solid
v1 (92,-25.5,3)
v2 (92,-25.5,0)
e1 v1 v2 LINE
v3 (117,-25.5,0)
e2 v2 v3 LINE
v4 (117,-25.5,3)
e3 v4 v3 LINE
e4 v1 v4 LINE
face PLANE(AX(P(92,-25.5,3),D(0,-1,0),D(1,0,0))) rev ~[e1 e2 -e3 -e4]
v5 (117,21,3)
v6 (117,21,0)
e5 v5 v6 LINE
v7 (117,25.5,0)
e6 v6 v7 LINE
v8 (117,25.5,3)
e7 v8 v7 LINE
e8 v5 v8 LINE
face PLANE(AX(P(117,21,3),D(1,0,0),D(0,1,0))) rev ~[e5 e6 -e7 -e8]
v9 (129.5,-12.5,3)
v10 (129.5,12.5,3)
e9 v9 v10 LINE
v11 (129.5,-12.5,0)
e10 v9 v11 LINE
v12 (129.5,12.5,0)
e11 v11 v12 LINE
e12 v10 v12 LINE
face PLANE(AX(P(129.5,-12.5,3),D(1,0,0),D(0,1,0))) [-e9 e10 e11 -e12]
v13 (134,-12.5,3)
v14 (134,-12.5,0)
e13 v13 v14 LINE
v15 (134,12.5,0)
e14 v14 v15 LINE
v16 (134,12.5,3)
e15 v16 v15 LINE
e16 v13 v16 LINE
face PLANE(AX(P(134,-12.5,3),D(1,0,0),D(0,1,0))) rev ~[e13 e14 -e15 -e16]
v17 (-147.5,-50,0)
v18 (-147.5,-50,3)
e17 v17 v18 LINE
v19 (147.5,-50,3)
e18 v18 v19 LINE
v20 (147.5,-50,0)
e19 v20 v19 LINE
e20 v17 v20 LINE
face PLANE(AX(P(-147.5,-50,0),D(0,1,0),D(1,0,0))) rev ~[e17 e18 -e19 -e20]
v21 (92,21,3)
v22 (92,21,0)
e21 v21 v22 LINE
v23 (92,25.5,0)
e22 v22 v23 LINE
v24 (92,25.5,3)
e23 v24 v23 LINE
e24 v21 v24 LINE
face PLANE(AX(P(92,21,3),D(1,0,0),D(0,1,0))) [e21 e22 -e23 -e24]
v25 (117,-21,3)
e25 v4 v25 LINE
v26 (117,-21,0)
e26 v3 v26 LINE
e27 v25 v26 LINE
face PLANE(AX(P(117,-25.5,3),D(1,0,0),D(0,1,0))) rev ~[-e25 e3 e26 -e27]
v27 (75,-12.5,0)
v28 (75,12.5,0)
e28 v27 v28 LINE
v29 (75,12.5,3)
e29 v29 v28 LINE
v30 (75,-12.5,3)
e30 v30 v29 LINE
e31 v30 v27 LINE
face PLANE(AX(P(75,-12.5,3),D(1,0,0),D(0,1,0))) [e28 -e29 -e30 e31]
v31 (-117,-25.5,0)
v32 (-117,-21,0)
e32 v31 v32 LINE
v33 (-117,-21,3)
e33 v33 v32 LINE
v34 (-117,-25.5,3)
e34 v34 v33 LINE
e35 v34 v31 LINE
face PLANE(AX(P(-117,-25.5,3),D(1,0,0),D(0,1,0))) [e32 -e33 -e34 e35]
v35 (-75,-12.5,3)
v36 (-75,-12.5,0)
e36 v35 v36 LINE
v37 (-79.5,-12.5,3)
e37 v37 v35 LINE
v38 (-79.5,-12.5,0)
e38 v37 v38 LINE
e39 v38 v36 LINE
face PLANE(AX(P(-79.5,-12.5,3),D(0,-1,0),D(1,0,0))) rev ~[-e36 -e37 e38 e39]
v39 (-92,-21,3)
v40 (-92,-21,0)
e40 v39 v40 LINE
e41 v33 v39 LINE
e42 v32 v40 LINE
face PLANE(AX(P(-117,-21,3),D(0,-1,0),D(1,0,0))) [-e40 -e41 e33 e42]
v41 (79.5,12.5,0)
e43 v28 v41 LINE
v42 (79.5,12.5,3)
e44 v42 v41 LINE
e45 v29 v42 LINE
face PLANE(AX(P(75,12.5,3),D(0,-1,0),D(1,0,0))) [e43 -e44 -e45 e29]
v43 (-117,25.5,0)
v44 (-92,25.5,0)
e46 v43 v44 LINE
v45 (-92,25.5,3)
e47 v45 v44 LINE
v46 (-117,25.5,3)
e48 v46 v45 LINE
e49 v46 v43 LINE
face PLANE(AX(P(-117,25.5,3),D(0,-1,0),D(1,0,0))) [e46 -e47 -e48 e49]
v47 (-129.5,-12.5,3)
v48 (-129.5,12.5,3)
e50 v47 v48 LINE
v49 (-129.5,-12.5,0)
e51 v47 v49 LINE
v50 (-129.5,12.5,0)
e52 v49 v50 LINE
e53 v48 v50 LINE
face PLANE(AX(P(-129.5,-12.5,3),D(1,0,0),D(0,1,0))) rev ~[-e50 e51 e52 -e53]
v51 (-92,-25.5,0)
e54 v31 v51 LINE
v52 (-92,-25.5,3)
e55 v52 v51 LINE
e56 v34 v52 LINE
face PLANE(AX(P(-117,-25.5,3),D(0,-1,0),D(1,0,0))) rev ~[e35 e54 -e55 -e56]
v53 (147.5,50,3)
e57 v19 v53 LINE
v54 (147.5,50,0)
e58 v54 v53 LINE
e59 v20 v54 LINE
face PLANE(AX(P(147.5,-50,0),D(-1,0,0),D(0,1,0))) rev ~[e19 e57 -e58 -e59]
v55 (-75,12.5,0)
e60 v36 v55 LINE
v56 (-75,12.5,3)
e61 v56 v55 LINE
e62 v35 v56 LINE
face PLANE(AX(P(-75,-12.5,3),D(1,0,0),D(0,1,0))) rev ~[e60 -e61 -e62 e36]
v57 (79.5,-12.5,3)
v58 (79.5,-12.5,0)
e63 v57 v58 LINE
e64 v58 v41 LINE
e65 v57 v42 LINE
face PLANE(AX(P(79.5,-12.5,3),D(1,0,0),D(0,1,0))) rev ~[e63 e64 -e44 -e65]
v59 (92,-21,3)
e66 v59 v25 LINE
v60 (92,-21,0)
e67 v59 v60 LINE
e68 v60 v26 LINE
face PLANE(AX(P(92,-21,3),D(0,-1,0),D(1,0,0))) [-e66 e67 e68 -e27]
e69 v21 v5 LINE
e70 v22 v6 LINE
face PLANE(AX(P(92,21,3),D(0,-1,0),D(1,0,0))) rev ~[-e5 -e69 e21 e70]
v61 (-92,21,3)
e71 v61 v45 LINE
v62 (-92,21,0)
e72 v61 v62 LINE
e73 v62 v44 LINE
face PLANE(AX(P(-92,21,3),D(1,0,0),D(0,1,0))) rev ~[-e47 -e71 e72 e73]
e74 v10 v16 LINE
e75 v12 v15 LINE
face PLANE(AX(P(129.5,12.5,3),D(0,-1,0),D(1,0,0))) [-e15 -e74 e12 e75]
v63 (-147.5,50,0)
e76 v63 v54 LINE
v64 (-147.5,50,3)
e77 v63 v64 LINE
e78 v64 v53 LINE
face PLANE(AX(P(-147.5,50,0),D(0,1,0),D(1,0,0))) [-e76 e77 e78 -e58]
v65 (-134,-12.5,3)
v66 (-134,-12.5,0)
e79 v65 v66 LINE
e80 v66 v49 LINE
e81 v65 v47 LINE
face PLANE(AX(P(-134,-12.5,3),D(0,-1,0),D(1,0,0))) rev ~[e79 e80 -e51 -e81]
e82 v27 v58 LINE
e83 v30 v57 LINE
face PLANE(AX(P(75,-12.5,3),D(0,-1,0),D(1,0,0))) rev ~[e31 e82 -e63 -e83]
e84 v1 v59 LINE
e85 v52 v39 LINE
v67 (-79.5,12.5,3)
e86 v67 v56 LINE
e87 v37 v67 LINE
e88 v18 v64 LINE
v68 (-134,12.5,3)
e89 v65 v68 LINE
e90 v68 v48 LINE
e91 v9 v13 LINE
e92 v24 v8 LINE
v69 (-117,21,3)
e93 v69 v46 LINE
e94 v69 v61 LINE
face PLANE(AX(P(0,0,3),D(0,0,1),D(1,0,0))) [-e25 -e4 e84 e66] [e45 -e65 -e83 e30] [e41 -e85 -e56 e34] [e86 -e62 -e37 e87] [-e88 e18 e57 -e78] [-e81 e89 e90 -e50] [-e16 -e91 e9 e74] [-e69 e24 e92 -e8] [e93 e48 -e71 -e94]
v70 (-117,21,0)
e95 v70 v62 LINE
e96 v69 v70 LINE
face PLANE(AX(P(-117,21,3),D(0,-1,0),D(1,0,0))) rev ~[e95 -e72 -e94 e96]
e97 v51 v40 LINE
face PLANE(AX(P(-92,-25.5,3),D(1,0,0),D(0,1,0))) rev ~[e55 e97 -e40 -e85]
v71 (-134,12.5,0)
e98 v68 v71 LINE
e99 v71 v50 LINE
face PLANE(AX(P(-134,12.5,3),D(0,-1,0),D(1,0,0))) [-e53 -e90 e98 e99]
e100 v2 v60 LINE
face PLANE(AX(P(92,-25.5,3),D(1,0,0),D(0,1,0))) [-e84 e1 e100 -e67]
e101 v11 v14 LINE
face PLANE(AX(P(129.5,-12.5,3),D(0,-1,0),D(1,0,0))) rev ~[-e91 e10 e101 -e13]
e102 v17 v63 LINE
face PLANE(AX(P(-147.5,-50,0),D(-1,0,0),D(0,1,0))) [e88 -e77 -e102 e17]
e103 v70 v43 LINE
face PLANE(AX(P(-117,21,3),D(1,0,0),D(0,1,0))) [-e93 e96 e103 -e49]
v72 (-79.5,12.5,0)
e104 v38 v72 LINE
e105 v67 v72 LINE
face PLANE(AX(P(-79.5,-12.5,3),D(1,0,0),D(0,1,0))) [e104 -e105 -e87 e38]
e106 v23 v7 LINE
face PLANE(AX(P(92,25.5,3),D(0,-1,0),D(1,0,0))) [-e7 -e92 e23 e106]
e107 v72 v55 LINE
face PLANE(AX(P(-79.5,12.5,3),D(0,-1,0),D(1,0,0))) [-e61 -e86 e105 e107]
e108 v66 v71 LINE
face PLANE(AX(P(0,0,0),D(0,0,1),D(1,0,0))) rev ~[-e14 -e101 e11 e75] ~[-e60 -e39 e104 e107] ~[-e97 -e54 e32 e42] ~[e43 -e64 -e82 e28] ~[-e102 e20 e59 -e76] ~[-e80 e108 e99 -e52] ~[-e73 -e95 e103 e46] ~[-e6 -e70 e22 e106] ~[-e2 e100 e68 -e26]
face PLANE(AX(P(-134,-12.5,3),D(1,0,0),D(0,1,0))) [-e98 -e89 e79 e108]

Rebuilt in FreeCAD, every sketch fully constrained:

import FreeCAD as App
import Part
import Sketcher
from FreeCAD import Vector
Q = App.Units.Quantity


def add_polygon(sketch, points):
    """Adds a closed chain of lines whose ends are joined by coincident constraints."""
    first, n = sketch.GeometryCount, len(points)
    for a, b in zip(points, points[1:] + points[:1]):
        sketch.addGeometry(Part.LineSegment(App.Vector(*a, 0), App.Vector(*b, 0)), False)
    for i in range(n):
        sketch.addConstraint(Sketcher.Constraint("Coincident", first + i, 2, first + (i + 1) % n, 1))

doc = App.newDocument("Part")
body = doc.addObject("PartDesign::Body", "Body")

sketch1 = body.newObject("Sketcher::SketchObject", "Sketch")
sketch1.AttachmentSupport = (doc.getObject("XY_Plane"), [""])
sketch1.MapMode = "FlatFace"
add_polygon(sketch1, [(-148, 50), (-148, -50), (148, -50), (148, 50)])
sketch1.addConstraint([
    Sketcher.Constraint("Vertical", 0),
    Sketcher.Constraint("Horizontal", 1),
    Sketcher.Constraint("Vertical", 2),
    Sketcher.Constraint("Horizontal", 3),
    Sketcher.Constraint("Symmetric", 0, 2, 2, 2, -1, 1),
    Sketcher.Constraint("DistanceX", 1, 1, 1, 2, Q("295 mm")),
    Sketcher.Constraint("DistanceY", 0, 2, 0, 1, Q("100 mm")),
])
pad1 = body.newObject("PartDesign::Pad", "Pad")
pad1.Profile = sketch1
pad1.Length = 3

sketch2 = body.newObject("Sketcher::SketchObject", "Sketch001")
sketch2.AttachmentSupport = (doc.getObject("XY_Plane"), [""])
sketch2.MapMode = "FlatFace"
sketch2.AttachmentOffset = App.Placement(Vector(0, 0, 3), App.Rotation())
add_polygon(sketch2, [(129.5, 12.5), (129.5, -12.5), (134, -12.5), (134, 12.5)])
add_polygon(sketch2, [(-79.5, 12.5), (-79.5, -12.5), (-75, -12.5), (-75, 12.5)])
add_polygon(sketch2, [(-134, 12.5), (-134, -12.5), (-129.5, -12.5), (-129.5, 12.5)])
add_polygon(sketch2, [(-117, 25.5), (-117, 21), (-92, 21), (-92, 25.5)])
add_polygon(sketch2, [(-117, -21), (-117, -25.5), (-92, -25.5), (-92, -21)])
add_polygon(sketch2, [(75, 12.5), (75, -12.5), (79.5, -12.5), (79.5, 12.5)])
add_polygon(sketch2, [(92, -21), (92, -25.5), (117, -25.5), (117, -21)])
add_polygon(sketch2, [(92, 25.5), (92, 21), (117, 21), (117, 25.5)])
sketch2.addConstraint([
    Sketcher.Constraint("Vertical", 0),
    Sketcher.Constraint("Horizontal", 1),
    Sketcher.Constraint("Vertical", 2),
    Sketcher.Constraint("Horizontal", 3),
    Sketcher.Constraint("Vertical", 4),
    Sketcher.Constraint("Horizontal", 5),
    Sketcher.Constraint("Vertical", 6),
    Sketcher.Constraint("Horizontal", 7),
    Sketcher.Constraint("Vertical", 8),
    Sketcher.Constraint("Horizontal", 9),
    Sketcher.Constraint("Vertical", 10),
    Sketcher.Constraint("Horizontal", 11),
    Sketcher.Constraint("Vertical", 12),
    Sketcher.Constraint("Horizontal", 13),
    Sketcher.Constraint("Vertical", 14),
    Sketcher.Constraint("Horizontal", 15),
    Sketcher.Constraint("Vertical", 16),
    Sketcher.Constraint("Horizontal", 17),
    Sketcher.Constraint("Vertical", 18),
    Sketcher.Constraint("Horizontal", 19),
    Sketcher.Constraint("Vertical", 20),
    Sketcher.Constraint("Horizontal", 21),
    Sketcher.Constraint("Vertical", 22),
    Sketcher.Constraint("Horizontal", 23),
    Sketcher.Constraint("Vertical", 24),
    Sketcher.Constraint("Horizontal", 25),
    Sketcher.Constraint("Vertical", 26),
    Sketcher.Constraint("Horizontal", 27),
    Sketcher.Constraint("Vertical", 28),
    Sketcher.Constraint("Horizontal", 29),
    Sketcher.Constraint("Vertical", 30),
    Sketcher.Constraint("Horizontal", 31),
    Sketcher.Constraint("Symmetric", 2, 2, 8, 2, -1, 1),
    Sketcher.Constraint("Symmetric", 0, 2, 10, 2, -1, 1),
    Sketcher.Constraint("Symmetric", 6, 2, 20, 2, -1, 1),
    Sketcher.Constraint("Symmetric", 4, 2, 22, 2, -1, 1),
    Sketcher.Constraint("Symmetric", 14, 2, 24, 2, -1, 1),
    Sketcher.Constraint("Symmetric", 12, 2, 26, 2, -1, 1),
    Sketcher.Constraint("Symmetric", 18, 2, 28, 2, -1, 1),
    Sketcher.Constraint("Symmetric", 16, 2, 30, 2, -1, 1),
    Sketcher.Constraint("Symmetric", 17, 2, 24, 2, -2),
    Sketcher.Constraint("Symmetric", 19, 2, 26, 2, -2),
    Sketcher.Constraint("Horizontal", 1, 2, 4, 2),
    Sketcher.Constraint("Horizontal", 3, 2, 6, 2),
    Sketcher.Constraint("Horizontal", 5, 2, 8, 2),
    Sketcher.Constraint("Equal", 3, 5),
    Sketcher.Constraint("Equal", 31, 0),
    Sketcher.Constraint("Equal", 23, 12),
    Sketcher.Constraint("DistanceX", 13, 1, 13, 2, Q("25 mm")),
    Sketcher.Constraint("DistanceX", 1, 1, 1, 2, Q("4.5 mm")),
    Sketcher.Constraint("DistanceX", -1, 1, 1, 2, Q("134 mm")),
    Sketcher.Constraint("DistanceX", 5, 2, -1, 1, Q("75 mm")),
    Sketcher.Constraint("DistanceX", 12, 2, -1, 1, Q("117 mm")),
    Sketcher.Constraint("DistanceY", -1, 1, 12, 2, Q("21 mm")),
])
pocket1 = body.newObject("PartDesign::Pocket", "Pocket")
pocket1.Profile = sketch2
pocket1.Type = "ThroughAll"

doc.recompute()
